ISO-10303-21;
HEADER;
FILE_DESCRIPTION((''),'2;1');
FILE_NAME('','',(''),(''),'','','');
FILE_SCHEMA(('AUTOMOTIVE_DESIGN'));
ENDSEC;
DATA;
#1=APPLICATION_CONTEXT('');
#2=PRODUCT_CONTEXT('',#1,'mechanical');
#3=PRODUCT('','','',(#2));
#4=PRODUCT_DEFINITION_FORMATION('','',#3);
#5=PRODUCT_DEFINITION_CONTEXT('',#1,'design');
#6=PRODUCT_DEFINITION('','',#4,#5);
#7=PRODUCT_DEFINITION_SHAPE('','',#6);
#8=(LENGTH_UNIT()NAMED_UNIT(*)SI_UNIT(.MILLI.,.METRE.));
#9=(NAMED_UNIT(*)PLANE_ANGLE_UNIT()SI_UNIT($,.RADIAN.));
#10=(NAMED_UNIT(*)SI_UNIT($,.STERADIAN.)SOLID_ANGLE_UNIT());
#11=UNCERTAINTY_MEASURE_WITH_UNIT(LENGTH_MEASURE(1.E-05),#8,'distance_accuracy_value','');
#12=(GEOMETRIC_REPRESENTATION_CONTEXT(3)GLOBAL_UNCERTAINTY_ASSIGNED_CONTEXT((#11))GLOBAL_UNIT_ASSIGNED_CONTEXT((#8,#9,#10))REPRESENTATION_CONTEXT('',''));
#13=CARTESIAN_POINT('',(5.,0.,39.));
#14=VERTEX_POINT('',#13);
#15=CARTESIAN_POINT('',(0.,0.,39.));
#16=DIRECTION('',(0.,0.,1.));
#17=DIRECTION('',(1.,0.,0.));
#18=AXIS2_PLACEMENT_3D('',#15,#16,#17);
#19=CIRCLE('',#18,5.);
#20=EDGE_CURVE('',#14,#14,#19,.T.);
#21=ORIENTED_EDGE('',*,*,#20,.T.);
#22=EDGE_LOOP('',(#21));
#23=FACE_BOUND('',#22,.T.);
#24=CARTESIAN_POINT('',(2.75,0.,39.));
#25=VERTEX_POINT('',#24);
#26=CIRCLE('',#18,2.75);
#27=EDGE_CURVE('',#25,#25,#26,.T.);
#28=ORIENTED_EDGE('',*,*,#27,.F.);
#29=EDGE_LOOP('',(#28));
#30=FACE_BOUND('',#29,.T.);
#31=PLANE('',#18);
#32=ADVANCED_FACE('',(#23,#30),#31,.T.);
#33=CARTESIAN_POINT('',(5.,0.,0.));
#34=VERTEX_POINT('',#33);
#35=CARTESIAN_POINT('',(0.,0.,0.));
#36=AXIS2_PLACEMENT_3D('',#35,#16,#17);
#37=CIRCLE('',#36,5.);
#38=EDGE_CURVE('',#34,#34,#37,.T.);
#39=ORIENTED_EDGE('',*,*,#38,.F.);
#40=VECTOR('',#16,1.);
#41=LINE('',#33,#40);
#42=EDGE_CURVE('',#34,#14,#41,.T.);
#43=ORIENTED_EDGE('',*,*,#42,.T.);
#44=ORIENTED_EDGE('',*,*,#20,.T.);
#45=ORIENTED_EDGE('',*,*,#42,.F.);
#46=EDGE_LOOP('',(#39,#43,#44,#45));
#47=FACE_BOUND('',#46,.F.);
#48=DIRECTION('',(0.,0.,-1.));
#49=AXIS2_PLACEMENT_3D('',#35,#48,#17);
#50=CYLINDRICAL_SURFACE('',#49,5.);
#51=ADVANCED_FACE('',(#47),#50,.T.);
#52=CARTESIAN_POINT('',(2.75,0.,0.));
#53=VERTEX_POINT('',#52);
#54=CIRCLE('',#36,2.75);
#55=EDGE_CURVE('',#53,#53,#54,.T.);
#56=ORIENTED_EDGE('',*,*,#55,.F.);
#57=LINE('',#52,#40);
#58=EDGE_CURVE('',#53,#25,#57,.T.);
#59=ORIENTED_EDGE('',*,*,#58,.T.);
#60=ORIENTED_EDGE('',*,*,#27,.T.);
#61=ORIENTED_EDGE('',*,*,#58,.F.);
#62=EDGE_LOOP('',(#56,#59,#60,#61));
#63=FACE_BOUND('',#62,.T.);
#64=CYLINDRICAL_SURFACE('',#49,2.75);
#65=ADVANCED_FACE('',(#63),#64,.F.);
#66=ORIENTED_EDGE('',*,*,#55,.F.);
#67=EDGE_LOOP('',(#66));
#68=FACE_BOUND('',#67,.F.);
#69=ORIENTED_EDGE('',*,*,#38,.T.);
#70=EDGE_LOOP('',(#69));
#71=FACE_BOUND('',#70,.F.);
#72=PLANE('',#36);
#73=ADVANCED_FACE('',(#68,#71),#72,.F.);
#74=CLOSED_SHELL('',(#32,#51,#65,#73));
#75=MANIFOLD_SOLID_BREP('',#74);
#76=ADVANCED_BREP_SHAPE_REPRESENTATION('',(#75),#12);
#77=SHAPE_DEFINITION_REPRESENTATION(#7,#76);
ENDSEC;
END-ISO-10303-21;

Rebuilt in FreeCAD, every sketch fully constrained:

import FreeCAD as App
import Part
import Sketcher

V = App.Vector
Q = App.Units.Quantity

doc = App.newDocument("Part")
body = doc.addObject("PartDesign::Body", "Body")

sketch1 = body.newObject("Sketcher::SketchObject", "Sketch")
sketch1.AttachmentSupport = (doc.getObject("XY_Plane"), [""])
sketch1.MapMode = "FlatFace"
sketch1.addGeometry(Part.Circle(V(0, 0, 0), V(0, 0, 1), 5), False)
sketch1.addGeometry(Part.Circle(V(0, 0, 0), V(0, 0, 1), 2.8), False)
sketch1.addConstraint(Sketcher.Constraint("Coincident", 0, 3, -1, 1))
sketch1.addConstraint(Sketcher.Constraint("Coincident", 1, 3, -1, 1))
sketch1.addConstraint(Sketcher.Constraint("Diameter", 0, Q("10 mm")))
sketch1.addConstraint(Sketcher.Constraint("Diameter", 1, Q("5.5 mm")))
pad1 = body.newObject("PartDesign::Pad", "Pad")
pad1.Profile = sketch1
pad1.Length = 39

doc.recompute()
